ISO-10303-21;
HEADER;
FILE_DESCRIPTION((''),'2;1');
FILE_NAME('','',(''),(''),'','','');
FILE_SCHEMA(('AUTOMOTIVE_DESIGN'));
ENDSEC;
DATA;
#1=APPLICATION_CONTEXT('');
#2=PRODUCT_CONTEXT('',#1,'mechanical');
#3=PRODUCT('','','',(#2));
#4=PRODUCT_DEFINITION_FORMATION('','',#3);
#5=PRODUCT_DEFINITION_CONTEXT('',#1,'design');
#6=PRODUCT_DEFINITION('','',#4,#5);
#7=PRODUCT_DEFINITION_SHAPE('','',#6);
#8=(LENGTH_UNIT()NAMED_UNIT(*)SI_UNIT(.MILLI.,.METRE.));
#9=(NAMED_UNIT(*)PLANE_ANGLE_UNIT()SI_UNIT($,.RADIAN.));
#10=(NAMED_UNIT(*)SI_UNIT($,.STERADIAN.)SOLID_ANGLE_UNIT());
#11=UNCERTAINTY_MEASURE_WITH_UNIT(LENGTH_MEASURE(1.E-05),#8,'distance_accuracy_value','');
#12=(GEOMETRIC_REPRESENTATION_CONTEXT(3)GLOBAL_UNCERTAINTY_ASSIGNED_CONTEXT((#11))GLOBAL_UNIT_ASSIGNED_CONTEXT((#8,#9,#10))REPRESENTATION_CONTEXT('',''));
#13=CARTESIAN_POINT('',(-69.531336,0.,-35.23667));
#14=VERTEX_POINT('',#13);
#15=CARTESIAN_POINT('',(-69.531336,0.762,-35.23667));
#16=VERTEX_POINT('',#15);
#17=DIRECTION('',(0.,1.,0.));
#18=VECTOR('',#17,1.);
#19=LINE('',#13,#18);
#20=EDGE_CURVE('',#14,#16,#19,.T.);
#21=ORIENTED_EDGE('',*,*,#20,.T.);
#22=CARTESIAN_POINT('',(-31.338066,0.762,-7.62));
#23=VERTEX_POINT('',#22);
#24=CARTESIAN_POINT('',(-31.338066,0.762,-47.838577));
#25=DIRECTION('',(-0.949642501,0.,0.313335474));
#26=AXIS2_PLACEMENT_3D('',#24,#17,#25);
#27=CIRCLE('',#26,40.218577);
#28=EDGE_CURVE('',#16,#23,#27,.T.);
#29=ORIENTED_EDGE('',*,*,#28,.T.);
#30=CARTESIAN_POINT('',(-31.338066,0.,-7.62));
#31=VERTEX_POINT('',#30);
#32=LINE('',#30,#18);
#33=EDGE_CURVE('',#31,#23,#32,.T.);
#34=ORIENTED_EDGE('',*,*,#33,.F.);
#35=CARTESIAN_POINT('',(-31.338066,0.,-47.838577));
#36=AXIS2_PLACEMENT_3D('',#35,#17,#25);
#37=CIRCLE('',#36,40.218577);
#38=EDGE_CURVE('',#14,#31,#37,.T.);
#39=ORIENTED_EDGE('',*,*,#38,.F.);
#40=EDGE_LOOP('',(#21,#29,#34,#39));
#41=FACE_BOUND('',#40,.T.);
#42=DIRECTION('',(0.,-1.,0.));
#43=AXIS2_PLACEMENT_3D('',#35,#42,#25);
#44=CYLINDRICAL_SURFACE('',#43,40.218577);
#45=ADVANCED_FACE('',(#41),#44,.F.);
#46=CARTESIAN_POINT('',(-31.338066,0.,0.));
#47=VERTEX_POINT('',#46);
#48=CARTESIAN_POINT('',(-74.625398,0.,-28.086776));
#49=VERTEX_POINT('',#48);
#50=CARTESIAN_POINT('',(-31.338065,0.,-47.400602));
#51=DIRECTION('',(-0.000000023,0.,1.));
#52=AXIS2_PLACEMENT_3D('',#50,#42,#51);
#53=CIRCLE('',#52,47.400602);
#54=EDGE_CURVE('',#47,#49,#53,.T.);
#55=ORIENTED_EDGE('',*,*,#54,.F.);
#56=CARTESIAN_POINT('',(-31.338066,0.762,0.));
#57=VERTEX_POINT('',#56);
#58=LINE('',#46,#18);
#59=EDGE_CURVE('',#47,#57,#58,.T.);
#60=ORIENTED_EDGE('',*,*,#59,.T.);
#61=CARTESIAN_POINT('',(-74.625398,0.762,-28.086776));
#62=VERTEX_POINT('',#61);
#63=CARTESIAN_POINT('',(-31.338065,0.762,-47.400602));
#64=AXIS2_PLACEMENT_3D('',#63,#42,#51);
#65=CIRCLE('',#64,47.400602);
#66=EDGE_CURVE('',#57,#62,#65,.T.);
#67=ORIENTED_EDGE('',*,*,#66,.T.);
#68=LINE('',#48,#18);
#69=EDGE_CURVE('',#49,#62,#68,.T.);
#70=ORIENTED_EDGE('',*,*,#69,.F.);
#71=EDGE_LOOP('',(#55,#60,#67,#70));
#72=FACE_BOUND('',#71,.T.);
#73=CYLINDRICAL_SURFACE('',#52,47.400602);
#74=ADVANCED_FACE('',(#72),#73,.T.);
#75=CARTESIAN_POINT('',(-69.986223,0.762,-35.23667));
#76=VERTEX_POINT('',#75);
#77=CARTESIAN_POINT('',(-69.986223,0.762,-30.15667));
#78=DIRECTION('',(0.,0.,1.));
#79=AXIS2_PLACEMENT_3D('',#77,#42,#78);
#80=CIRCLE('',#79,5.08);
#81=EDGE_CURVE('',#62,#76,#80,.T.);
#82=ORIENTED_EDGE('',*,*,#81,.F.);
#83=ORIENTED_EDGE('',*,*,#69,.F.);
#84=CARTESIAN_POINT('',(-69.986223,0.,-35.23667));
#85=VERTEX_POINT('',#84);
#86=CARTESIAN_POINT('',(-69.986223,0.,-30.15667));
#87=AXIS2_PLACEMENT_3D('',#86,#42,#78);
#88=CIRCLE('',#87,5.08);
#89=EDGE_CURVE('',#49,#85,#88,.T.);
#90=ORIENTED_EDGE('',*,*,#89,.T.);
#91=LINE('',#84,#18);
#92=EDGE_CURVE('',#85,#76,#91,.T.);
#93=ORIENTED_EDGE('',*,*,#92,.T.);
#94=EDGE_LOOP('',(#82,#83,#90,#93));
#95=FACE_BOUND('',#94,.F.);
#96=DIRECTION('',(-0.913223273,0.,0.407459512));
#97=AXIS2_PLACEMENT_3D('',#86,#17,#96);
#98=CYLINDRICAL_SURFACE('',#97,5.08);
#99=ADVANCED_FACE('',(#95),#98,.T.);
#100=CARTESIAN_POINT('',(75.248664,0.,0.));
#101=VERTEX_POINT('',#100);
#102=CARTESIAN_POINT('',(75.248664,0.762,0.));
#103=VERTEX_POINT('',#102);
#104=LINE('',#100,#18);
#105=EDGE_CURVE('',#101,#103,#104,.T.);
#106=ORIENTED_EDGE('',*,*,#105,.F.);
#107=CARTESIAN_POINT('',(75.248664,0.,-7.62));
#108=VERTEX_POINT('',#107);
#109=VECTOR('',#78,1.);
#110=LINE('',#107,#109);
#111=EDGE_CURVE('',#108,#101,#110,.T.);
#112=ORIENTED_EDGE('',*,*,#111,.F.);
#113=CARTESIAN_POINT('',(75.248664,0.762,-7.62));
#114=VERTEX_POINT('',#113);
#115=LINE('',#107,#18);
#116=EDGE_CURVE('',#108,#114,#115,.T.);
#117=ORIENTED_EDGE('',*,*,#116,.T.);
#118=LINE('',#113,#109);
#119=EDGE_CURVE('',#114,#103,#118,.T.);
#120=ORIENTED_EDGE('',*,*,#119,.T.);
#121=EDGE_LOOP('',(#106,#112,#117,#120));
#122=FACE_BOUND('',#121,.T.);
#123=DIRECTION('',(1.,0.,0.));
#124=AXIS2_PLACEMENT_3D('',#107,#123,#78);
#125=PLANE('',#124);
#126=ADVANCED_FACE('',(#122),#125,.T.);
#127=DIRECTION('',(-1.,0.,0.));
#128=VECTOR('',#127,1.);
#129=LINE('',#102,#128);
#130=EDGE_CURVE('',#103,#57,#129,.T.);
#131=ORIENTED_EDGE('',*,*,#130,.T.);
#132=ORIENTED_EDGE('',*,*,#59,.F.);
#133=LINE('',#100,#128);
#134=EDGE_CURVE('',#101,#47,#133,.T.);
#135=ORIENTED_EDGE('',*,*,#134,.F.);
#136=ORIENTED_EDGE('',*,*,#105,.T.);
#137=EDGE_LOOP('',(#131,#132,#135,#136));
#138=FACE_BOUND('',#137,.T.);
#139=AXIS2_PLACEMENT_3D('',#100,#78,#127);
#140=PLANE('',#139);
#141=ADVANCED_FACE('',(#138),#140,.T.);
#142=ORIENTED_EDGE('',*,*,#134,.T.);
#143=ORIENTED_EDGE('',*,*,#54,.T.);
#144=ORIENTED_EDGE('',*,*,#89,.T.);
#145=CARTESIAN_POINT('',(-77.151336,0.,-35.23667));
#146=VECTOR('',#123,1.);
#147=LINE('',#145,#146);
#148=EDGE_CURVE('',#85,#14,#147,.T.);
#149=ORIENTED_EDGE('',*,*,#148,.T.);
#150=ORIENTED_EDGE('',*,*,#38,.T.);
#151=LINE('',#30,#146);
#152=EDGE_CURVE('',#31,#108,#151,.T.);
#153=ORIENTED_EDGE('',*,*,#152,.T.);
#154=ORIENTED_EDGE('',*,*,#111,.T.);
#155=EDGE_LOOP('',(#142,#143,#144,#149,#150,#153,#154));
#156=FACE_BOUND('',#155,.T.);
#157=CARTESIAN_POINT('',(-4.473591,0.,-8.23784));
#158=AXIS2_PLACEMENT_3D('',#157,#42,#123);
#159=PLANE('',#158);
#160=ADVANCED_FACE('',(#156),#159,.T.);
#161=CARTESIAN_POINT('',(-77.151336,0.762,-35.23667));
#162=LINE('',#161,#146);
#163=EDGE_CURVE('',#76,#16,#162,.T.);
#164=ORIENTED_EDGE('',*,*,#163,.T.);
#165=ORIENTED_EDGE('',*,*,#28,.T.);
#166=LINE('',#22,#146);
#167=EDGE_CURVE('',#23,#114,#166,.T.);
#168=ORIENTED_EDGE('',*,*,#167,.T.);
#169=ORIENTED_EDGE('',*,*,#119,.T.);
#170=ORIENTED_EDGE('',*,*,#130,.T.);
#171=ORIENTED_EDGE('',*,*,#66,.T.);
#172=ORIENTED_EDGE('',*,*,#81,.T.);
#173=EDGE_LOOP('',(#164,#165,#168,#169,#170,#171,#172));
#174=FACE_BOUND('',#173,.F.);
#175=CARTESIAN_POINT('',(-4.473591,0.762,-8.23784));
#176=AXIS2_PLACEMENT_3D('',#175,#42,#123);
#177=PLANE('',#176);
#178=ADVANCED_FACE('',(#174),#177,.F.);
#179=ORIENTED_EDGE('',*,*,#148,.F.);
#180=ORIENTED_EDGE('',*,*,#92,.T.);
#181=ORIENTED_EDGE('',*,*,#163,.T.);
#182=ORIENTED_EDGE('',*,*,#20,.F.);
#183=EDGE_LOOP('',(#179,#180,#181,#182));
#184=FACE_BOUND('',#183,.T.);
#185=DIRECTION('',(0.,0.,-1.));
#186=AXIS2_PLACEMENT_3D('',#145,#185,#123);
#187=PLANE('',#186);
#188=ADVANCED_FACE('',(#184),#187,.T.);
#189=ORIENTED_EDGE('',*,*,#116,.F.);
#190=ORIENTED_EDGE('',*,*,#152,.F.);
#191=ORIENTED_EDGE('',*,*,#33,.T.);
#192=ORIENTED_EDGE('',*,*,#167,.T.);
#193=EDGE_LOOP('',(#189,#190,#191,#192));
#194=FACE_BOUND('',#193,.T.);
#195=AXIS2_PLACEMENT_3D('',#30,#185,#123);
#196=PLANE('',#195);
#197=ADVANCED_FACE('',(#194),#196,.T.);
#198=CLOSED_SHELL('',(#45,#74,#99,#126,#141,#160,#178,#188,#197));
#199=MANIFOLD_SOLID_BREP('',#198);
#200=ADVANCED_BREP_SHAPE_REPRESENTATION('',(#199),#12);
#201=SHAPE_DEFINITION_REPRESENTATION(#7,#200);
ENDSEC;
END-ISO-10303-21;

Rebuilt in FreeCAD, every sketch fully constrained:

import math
import FreeCAD as App
import Part
import Sketcher
Q = App.Units.Quantity


def edges_at(feature, points):
    """Names of the edges that pass closest to the given points."""
    edges = feature.Shape.Edges
    near = lambda p: min(range(len(edges)), key=lambda i: edges[i].distToShape(Part.Vertex(*p))[0])
    return sorted({f"Edge{near(p) + 1}" for p in points})

doc = App.newDocument("Part")
params = doc.addObject("Spreadsheet::Sheet", "Params")
for row, (alias, value) in enumerate([
    ("sketch1_width", "0.3 in"),
    ("pad1_length", "0.03 in"),
    ("fillet_radius", "0.2 in"),
], start=1):
    params.set(f"A{row}", alias)
    params.set(f"B{row}", "=" + value)
    params.setAlias(f"B{row}", alias)

body = doc.addObject("PartDesign::Body", "Body")

sketch1 = body.newObject("Sketcher::SketchObject", "Sketch")
sketch1.AttachmentSupport = (doc.getObject("XZ_Plane"), [""])
sketch1.MapMode = "FlatFace"
sketch1.addGeometry(Part.LineSegment(App.Vector(75.248664, -7.62, 0), App.Vector(75.248664, 0, 0)), False)
sketch1.addGeometry(Part.LineSegment(App.Vector(75.248664, 0, 0), App.Vector(-31.338066, 0, 0)), False)
sketch1.addGeometry(Part.ArcOfCircle(Part.Circle(App.Vector(-31.338065, -47.400602, 0), App.Vector(0, 0, 1), 47.400602), math.radians(90.000001), math.radians(165.130414)), False)
sketch1.addGeometry(Part.LineSegment(App.Vector(-77.151336, -35.23667, 0), App.Vector(-69.531336, -35.23667, 0)), False)
sketch1.addGeometry(Part.ArcOfCircle(Part.Circle(App.Vector(-31.338066, -47.838577, 0), App.Vector(0, 0, 1), 40.218577), math.radians(90), math.radians(161.739643)), False)
sketch1.addGeometry(Part.LineSegment(App.Vector(-31.338066, -7.62, 0), App.Vector(75.248664, -7.62, 0)), False)
sketch1.addConstraint(Sketcher.Constraint("Coincident", 0, 2, 1, 1))
sketch1.addConstraint(Sketcher.Constraint("Tangent", 1, 2, 2, 1))
sketch1.addConstraint(Sketcher.Constraint("Coincident", 2, 2, 3, 1))
sketch1.addConstraint(Sketcher.Constraint("Coincident", 3, 2, 4, 2))
sketch1.addConstraint(Sketcher.Constraint("Tangent", 4, 1, 5, 1))
sketch1.addConstraint(Sketcher.Constraint("Coincident", 5, 2, 0, 1))
sketch1.addConstraint(Sketcher.Constraint("Vertical", 0))
sketch1.addConstraint(Sketcher.Constraint("Horizontal", 1))
sketch1.addConstraint(Sketcher.Constraint("Horizontal", 3))
sketch1.addConstraint(Sketcher.Constraint("Horizontal", 5))
sketch1.addConstraint(Sketcher.Constraint("PointOnObject", 0, 2, -1))
sketch1.addConstraint(Sketcher.Constraint("Vertical", 2, 3, 4, 3))
sketch1.addConstraint(Sketcher.Constraint("Equal", 3, 0))
sketch1.addConstraint(Sketcher.Constraint("DistanceX", 3, 1, 3, 2, Q("0.3 in")))
sketch1.addConstraint(Sketcher.Constraint("DistanceX", 2, 2, 0, 2, Q("6 in")))
sketch1.addConstraint(Sketcher.Constraint("Radius", 2, Q("47.400602 mm")))
sketch1.addConstraint(Sketcher.Constraint("Radius", 4, Q("40.218577 mm")))
sketch1.addConstraint(Sketcher.Constraint("DistanceX", 2, 3, -1, 1, Q("31.338065 mm")))
sketch1.setExpression("Constraints[13]", "Params.sketch1_width")
pad1 = body.newObject("PartDesign::Pad", "Pad")
pad1.Profile = sketch1
pad1.setExpression("Length", "Params.pad1_length")
pad1.Reversed = True
doc.recompute()

fillet = body.newObject("PartDesign::Fillet", "Fillet")
fillet.Base = (pad1, edges_at(pad1, [(-77.151, 0.381, -35.237)]))
fillet.setExpression("Radius", "Params.fillet_radius")

doc.recompute()
